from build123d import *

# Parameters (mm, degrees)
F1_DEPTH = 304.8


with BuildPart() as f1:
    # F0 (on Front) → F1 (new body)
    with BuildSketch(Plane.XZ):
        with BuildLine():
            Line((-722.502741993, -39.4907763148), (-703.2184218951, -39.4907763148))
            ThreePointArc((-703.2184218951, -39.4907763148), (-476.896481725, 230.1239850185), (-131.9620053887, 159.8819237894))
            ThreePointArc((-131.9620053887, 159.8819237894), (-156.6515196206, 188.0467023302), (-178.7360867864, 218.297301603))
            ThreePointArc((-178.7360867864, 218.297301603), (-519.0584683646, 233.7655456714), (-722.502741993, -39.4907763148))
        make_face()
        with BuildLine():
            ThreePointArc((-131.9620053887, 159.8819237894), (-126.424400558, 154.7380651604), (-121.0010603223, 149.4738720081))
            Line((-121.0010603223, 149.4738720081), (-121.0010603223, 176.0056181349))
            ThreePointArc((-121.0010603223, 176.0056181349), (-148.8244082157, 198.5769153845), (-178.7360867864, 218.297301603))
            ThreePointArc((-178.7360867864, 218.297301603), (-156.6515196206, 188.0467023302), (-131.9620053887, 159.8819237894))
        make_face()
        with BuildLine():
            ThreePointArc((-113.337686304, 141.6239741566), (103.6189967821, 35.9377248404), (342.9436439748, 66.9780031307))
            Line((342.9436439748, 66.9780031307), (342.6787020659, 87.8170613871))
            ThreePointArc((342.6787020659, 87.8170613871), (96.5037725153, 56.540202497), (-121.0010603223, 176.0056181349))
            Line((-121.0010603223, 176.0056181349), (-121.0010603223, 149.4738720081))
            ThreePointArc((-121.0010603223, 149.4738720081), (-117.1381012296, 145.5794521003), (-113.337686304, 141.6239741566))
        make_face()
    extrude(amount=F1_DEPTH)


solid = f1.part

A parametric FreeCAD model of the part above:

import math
import FreeCAD as App
import Part
import Sketcher
Q = App.Units.Quantity

doc = App.newDocument("Part")
body = doc.addObject("PartDesign::Body", "Body")

sketch1 = body.newObject("Sketcher::SketchObject", "Sketch")
sketch1.AttachmentSupport = (doc.getObject("XZ_Plane"), [""])
sketch1.MapMode = "FlatFace"
sketch1.addGeometry([
    Part.LineSegment(App.Vector(-722.502742, -39.490776, 0), App.Vector(-703.218422, -39.490776, 0)),
    Part.ArcOfCircle(Part.Circle(App.Vector(-363.463262, -94.892701, 0), App.Vector(0, 0, 1), 344.242562), math.radians(47.740109), math.radians(170.738618)),
    Part.ArcOfCircle(Part.Circle(App.Vector(-363.463263, -94.892701, 0), App.Vector(0, 0, 1), 344.242562), math.radians(45.224128), math.radians(47.740109)),
    Part.ArcOfCircle(Part.Circle(App.Vector(-363.463262, -94.892701, 0), App.Vector(0, 0, 1), 344.242562), math.radians(43.398147), math.radians(45.224128)),
    Part.ArcOfCircle(Part.Circle(App.Vector(171.487789, 450.792837, 0), App.Vector(0, 0, 1), 420.37), math.radians(-132.653188), math.radians(-65.928967)),
    Part.LineSegment(App.Vector(342.943644, 66.978003, 0), App.Vector(342.678702, 87.817061, 0)),
    Part.ArcOfCircle(Part.Circle(App.Vector(171.487789, 450.792837, 0), App.Vector(0, 0, 1), 401.32), math.radians(-136.787313), math.radians(-64.749945)),
    Part.ArcOfCircle(Part.Circle(App.Vector(-363.463262, -94.440031, 0), App.Vector(0, 0, 1), 363.22), math.radians(48.122872), math.radians(59.430572)),
    Part.ArcOfCircle(Part.Circle(App.Vector(-363.463262, -94.440031, 0), App.Vector(0, 0, 1), 363.22), math.radians(59.430572), math.radians(171.298676)),
], False)
sketch1.addConstraint([
    Sketcher.Constraint("Coincident", 0, 2, 1, 2),
    Sketcher.Constraint("Tangent", 1, 1, 2, 2),
    Sketcher.Constraint("Tangent", 2, 1, 3, 2),
    Sketcher.Constraint("Coincident", 3, 1, 4, 1),
    Sketcher.Constraint("Coincident", 4, 2, 5, 1),
    Sketcher.Constraint("Coincident", 5, 2, 6, 2),
    Sketcher.Constraint("Coincident", 6, 1, 7, 1),
    Sketcher.Constraint("Tangent", 7, 2, 8, 1),
    Sketcher.Constraint("Coincident", 8, 2, 0, 1),
    Sketcher.Constraint("Horizontal", 0),
    Sketcher.Constraint("Coincident", 3, 3, 1, 3),
    Sketcher.Constraint("Coincident", 6, 3, 4, 3),
    Sketcher.Constraint("Equal", 7, 8),
    Sketcher.Constraint("Vertical", 3, 3, 7, 3),
    Sketcher.Constraint("Vertical", 2, 1, 6, 1),
    Sketcher.Constraint("Radius", 6, Q("15.8 in")),
    Sketcher.Constraint("Radius", 7, Q("14.3 in")),
    Sketcher.Constraint("Radius", 4, Q("16.55 in")),
    Sketcher.Constraint("Radius", 3, 344.242562),
    Sketcher.Constraint("DistanceX", 0, 1, 0, 2, 19.28432),
    Sketcher.Constraint("DistanceY", 1, 3, -1, 1, 94.892701),
    Sketcher.Constraint("DistanceY", -1, 1, 7, 2, 218.297302),
    Sketcher.Constraint("DistanceX", 3, 3, 2, 1, 242.462202),
    Sketcher.Constraint("DistanceX", -1, 1, 4, 3, 171.487789),
    Sketcher.Constraint("DistanceY", 7, 3, -1, 1, 94.440031),
    Sketcher.Constraint("DistanceX", 0, 2, -1, 1, 703.218422),
    Sketcher.Constraint("DistanceY", -1, 1, 5, 2, 87.817061),
    Sketcher.Constraint("DistanceY", 2, 1, 1, 1, 10.408052),
    Sketcher.Constraint("DistanceX", 3, 1, 4, 2, 456.28133),
])
pad1 = body.newObject("PartDesign::Pad", "Pad")
pad1.Profile = sketch1
pad1.Length = Q("12 in")

doc.recompute()
